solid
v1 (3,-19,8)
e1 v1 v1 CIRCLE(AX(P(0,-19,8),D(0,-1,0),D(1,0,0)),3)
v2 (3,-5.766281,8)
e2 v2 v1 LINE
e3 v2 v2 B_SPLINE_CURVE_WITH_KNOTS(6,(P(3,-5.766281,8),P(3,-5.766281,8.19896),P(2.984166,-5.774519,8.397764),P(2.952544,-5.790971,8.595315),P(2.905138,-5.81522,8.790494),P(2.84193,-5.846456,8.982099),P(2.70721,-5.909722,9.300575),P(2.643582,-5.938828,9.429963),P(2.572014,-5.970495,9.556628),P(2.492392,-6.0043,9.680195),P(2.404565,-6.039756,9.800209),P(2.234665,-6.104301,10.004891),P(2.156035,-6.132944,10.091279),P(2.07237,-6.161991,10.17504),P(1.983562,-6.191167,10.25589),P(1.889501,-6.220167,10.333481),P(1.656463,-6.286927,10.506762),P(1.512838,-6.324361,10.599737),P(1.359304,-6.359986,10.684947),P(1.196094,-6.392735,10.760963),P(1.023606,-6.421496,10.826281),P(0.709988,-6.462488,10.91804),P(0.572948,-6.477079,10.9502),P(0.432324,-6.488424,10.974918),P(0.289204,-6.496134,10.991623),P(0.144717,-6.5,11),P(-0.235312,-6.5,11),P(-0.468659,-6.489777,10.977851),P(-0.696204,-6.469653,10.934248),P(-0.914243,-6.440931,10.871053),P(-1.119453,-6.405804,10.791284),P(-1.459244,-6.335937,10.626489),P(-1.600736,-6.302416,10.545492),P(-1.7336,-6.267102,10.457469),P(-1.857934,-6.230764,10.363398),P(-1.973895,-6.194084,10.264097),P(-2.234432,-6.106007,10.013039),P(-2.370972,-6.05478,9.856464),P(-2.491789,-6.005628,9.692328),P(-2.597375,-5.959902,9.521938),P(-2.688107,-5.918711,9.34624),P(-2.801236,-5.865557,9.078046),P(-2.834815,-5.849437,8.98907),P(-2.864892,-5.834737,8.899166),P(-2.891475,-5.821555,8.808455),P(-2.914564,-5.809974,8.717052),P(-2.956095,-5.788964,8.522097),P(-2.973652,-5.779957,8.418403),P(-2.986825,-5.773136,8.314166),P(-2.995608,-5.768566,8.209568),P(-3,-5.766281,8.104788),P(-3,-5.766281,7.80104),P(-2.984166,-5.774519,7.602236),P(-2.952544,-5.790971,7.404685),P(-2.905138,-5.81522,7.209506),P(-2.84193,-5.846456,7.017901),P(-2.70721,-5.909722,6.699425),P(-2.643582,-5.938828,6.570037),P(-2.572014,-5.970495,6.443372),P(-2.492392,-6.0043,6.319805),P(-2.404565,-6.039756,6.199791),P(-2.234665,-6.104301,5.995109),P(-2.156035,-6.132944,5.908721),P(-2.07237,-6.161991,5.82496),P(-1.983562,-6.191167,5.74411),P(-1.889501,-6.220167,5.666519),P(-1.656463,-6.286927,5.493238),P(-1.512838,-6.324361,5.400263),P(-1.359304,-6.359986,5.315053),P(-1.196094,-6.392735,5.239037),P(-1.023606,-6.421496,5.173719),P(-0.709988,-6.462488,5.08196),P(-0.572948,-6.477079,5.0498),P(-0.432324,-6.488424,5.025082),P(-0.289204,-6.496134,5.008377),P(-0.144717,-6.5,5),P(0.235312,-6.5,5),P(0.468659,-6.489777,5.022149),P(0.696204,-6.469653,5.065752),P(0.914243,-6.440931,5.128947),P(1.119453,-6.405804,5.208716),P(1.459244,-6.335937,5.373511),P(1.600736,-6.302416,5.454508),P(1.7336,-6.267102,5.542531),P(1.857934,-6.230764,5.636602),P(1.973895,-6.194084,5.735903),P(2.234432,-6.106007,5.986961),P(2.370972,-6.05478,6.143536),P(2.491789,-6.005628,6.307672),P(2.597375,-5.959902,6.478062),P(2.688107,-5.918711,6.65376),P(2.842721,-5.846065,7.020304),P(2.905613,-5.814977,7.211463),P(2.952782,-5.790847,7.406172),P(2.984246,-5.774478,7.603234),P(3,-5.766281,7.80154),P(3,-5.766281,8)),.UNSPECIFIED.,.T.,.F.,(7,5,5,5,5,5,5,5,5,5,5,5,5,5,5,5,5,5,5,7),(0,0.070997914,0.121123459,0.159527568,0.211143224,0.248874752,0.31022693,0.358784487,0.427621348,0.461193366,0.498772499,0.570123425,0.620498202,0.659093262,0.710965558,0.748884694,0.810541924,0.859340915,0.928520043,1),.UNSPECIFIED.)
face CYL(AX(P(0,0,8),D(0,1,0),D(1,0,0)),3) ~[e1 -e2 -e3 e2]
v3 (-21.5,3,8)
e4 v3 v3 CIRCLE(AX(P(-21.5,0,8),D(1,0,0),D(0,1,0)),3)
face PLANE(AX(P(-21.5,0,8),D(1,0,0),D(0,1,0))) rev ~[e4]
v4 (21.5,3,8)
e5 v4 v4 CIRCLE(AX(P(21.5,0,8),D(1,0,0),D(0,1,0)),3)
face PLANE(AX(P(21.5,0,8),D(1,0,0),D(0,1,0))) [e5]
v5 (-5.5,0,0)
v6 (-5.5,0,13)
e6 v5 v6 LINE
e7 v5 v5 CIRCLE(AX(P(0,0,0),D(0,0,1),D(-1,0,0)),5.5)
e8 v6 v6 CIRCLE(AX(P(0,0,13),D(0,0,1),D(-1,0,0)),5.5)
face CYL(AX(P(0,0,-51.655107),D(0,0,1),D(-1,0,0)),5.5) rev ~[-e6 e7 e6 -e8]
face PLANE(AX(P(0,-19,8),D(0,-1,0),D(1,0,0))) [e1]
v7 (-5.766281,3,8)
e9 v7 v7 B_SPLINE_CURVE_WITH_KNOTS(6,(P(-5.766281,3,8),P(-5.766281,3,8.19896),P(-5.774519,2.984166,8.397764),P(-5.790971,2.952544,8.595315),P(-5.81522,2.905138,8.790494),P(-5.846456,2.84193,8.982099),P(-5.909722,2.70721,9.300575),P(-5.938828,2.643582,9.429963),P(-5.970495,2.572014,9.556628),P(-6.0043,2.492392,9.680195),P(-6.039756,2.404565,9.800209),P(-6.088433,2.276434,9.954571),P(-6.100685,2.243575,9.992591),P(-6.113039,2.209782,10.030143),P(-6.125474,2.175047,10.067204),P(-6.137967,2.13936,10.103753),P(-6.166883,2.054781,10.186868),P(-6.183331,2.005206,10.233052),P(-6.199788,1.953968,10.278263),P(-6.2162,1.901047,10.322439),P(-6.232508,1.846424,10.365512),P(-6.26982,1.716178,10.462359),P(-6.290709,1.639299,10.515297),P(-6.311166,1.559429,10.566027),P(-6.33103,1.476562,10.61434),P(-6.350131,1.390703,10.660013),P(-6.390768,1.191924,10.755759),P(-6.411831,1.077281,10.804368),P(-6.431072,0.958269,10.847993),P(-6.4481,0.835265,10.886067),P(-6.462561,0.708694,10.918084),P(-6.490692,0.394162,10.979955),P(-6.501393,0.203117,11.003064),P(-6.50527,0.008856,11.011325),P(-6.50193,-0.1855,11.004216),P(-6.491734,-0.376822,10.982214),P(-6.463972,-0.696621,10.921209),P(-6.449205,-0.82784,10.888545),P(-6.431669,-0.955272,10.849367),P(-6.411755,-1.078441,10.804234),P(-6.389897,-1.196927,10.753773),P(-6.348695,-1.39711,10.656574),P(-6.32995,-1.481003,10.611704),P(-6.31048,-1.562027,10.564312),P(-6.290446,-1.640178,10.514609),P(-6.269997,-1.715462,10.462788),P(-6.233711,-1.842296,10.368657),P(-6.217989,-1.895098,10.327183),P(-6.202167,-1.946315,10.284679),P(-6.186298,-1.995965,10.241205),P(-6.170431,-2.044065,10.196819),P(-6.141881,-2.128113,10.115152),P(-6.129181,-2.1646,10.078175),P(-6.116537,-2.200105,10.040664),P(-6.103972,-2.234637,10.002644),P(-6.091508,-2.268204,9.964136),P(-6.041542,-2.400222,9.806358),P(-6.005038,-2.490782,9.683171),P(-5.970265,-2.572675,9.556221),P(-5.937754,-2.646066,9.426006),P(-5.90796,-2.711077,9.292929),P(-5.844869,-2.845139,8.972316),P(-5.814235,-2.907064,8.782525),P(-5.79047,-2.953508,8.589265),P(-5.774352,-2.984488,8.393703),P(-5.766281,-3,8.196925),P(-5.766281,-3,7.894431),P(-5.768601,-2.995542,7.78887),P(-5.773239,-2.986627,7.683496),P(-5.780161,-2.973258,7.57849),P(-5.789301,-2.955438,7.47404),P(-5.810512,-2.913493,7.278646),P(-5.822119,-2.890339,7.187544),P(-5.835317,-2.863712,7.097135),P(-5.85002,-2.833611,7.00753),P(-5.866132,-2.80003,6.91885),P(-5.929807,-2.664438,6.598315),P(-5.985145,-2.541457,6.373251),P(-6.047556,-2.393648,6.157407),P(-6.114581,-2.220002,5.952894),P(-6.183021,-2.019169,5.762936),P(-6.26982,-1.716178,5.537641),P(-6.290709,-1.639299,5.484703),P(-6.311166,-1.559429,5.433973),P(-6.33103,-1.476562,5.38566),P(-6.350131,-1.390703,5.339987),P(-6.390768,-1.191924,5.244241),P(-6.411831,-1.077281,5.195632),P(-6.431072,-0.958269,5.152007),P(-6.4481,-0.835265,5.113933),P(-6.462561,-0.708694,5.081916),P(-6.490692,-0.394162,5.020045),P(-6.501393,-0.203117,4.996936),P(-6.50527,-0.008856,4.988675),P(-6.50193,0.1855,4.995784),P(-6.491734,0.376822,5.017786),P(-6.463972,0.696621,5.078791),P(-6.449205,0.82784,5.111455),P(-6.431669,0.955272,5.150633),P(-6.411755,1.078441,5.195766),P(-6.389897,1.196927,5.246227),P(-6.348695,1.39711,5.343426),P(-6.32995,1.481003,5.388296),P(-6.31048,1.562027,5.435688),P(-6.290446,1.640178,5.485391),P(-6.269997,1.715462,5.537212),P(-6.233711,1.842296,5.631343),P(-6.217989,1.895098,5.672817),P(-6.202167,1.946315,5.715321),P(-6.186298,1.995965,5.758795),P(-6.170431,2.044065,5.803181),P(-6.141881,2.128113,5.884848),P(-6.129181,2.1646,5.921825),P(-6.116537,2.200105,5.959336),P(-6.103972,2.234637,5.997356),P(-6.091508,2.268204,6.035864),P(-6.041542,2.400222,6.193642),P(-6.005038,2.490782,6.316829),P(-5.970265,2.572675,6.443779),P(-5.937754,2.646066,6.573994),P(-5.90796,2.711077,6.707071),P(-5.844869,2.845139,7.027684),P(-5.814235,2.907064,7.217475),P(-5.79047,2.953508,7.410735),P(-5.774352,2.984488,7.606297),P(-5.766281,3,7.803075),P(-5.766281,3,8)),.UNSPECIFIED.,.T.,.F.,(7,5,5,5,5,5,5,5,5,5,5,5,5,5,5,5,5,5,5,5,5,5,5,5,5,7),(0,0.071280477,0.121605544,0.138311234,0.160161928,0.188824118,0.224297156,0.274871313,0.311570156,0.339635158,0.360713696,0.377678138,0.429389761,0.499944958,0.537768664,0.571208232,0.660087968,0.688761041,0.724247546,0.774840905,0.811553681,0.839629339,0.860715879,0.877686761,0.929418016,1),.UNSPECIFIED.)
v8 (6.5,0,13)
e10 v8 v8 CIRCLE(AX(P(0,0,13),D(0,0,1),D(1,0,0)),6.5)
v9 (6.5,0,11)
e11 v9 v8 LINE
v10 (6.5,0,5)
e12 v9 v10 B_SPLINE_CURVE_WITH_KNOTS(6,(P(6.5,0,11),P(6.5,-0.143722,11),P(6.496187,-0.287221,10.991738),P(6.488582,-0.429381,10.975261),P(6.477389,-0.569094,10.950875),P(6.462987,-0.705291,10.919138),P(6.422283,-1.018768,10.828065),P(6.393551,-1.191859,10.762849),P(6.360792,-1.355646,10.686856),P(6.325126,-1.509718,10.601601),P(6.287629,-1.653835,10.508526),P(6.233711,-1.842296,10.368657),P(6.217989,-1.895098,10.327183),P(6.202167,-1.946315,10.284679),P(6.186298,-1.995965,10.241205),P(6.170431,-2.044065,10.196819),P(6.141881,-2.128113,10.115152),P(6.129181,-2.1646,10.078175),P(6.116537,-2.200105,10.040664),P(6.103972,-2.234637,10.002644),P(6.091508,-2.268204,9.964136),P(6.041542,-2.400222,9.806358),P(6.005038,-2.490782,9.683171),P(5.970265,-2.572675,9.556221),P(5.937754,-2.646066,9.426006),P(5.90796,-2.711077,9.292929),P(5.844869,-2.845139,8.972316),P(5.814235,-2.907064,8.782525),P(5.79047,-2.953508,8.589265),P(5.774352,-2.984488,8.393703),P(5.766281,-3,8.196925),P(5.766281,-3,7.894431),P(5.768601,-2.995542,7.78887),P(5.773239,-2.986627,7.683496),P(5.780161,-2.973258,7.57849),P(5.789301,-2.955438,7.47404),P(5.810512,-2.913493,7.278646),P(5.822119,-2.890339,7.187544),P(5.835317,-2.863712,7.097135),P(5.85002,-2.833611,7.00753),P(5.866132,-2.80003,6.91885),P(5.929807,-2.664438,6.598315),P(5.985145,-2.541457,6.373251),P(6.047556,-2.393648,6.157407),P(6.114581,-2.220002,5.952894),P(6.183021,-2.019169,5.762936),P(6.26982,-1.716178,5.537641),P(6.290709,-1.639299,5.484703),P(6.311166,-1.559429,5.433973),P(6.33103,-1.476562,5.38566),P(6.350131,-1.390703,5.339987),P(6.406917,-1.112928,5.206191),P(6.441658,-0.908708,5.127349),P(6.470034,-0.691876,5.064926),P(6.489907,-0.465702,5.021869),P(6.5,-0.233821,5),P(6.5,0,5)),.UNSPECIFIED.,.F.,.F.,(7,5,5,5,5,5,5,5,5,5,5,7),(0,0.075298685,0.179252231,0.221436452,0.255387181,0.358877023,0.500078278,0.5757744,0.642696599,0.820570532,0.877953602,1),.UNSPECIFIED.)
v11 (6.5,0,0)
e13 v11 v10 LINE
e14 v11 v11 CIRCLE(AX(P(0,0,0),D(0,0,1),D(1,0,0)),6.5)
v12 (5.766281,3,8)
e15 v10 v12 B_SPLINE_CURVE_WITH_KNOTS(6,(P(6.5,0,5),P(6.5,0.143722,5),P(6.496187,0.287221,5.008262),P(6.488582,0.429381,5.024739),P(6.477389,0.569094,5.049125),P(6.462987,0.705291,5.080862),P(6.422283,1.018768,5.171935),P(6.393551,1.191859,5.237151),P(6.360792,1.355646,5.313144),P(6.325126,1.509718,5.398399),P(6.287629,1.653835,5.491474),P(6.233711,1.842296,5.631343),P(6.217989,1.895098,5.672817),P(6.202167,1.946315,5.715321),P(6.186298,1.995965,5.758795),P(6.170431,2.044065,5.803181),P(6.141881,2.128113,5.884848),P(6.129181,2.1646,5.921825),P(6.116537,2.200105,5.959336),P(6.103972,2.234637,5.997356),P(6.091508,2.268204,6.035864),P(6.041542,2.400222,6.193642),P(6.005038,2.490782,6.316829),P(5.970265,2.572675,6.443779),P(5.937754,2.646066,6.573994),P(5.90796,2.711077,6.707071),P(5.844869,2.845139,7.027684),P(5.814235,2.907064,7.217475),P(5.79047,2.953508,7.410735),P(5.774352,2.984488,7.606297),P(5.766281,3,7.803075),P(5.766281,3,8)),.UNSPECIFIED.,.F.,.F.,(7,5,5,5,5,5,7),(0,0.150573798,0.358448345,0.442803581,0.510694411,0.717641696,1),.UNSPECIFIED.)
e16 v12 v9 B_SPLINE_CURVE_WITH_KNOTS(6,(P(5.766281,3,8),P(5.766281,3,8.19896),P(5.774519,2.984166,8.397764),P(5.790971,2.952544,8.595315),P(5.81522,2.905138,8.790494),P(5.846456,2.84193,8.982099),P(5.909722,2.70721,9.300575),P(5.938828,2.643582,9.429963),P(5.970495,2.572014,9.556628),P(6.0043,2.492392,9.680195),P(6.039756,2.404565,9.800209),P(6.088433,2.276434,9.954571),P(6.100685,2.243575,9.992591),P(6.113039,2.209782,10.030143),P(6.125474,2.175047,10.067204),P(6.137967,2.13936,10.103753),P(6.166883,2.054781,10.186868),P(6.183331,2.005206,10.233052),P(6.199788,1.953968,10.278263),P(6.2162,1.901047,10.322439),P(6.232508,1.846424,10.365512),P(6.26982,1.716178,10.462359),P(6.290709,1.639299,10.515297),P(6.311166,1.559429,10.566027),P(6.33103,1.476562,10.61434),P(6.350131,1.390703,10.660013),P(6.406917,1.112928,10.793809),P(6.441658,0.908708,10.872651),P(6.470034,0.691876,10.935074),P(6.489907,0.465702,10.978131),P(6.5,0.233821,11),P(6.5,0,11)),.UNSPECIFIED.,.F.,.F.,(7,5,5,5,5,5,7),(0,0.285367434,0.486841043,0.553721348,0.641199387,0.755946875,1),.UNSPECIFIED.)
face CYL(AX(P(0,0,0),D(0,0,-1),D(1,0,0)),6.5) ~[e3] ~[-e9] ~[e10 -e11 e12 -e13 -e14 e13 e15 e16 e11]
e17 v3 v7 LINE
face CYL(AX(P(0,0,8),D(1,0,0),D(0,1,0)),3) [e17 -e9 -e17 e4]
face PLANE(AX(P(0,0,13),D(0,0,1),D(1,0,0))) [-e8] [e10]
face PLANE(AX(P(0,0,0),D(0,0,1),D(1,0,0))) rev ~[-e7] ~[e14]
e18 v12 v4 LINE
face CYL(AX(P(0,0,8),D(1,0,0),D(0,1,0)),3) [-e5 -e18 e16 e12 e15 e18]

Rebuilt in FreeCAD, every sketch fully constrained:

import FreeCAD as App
import Part
import Sketcher
from FreeCAD import Vector

doc = App.newDocument("Part")
body = doc.addObject("PartDesign::Body", "Body")

# Sketch on XY plane
sketch1 = doc.addObject("Sketcher::SketchObject", "Sketch")
body.addObject(sketch1)
sketch1.AttachmentSupport = (doc.XY_Plane, [""])
sketch1.MapMode = "FlatFace"
sketch1.addGeometry(Part.Circle(Vector(0, 0, 0), Vector(0, 0, 1), 6.5), False)
sketch1.addConstraint([
    Sketcher.Constraint("Coincident", 0, 3, -1, 1),
    Sketcher.Constraint("Diameter", 0, 13.0),
])
pad1 = doc.addObject("PartDesign::Pad", "Pad")
body.addObject(pad1)
pad1.Profile = sketch1
pad1.Length = 13

# Sketch on YZ plane
sketch2 = doc.addObject("Sketcher::SketchObject", "Sketch001")
body.addObject(sketch2)
sketch2.AttachmentSupport = (doc.YZ_Plane, [""])
sketch2.MapMode = "FlatFace"
sketch2.addGeometry(Part.Circle(Vector(0, 8, 0), Vector(0, 0, 1), 3), False)
sketch2.addConstraint([
    Sketcher.Constraint("PointOnObject", 0, 3, -2),
    Sketcher.Constraint("Diameter", 0, 6.0),
    Sketcher.Constraint("DistanceY", -1, 1, 0, 3, 8.0),
])
pad2 = doc.addObject("PartDesign::Pad", "Pad001")
body.addObject(pad2)
pad2.Profile = sketch2
pad2.Length = 43
pad2.Midplane = True

# Sketch on XZ plane
sketch3 = doc.addObject("Sketcher::SketchObject", "Sketch002")
body.addObject(sketch3)
sketch3.AttachmentSupport = (doc.XZ_Plane, [""])
sketch3.MapMode = "FlatFace"
sketch3.addGeometry(Part.Circle(Vector(0, 8, 0), Vector(0, 0, 1), 3), False)
sketch3.addConstraint([
    Sketcher.Constraint("PointOnObject", 0, 3, -2),
    Sketcher.Constraint("Diameter", 0, 6.0),
    Sketcher.Constraint("DistanceY", -1, 1, 0, 3, 8.0),
])
pad3 = doc.addObject("PartDesign::Pad", "Pad002")
body.addObject(pad3)
pad3.Profile = sketch3
pad3.Length = 19

# Sketch on XY plane
sketch4 = doc.addObject("Sketcher::SketchObject", "Sketch003")
body.addObject(sketch4)
sketch4.AttachmentSupport = (doc.XY_Plane, [""])
sketch4.MapMode = "FlatFace"
sketch4.addGeometry(Part.Circle(Vector(0, 0, 0), Vector(0, 0, 1), 5.5), False)
sketch4.addConstraint([
    Sketcher.Constraint("Coincident", 0, 3, -1, 1),
    Sketcher.Constraint("Diameter", 0, 11.0),
])
doc.recompute()
hole = doc.addObject("PartDesign::Hole", "Hole")
body.addObject(hole)
hole.Profile = sketch4
hole.ThreadType = "None"
hole.Diameter = 11
hole.DepthType = "ThroughAll"
hole.Reversed = True

doc.recompute()
